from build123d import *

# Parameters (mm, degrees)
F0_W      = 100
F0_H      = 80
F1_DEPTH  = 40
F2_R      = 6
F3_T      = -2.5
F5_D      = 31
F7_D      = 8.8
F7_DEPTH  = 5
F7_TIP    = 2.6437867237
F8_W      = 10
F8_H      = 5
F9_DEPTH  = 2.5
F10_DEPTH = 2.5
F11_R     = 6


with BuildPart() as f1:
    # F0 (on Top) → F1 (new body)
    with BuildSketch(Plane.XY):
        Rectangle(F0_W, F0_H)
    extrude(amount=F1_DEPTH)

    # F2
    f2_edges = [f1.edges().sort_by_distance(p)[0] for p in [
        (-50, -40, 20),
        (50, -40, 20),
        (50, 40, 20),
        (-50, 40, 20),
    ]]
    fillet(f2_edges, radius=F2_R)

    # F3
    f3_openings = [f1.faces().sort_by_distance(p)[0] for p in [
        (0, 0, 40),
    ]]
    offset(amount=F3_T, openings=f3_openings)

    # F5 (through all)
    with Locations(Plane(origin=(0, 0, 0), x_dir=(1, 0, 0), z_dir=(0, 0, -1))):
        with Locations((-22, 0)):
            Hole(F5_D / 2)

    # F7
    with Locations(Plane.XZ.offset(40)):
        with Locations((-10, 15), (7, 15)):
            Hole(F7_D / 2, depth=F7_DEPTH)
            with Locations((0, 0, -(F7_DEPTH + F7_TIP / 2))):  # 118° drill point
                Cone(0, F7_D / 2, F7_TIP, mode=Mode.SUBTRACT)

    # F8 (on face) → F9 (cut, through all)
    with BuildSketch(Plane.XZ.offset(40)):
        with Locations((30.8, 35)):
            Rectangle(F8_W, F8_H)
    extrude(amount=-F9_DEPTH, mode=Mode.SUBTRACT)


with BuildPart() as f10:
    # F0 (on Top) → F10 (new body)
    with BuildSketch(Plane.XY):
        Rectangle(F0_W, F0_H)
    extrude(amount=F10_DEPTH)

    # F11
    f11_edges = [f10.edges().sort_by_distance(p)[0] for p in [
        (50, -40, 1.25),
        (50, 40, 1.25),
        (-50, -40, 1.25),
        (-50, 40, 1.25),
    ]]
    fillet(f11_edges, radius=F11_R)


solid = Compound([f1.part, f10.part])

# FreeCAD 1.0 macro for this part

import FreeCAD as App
import Part
import Sketcher

V = App.Vector


def edges_at(feature, points):
    """Names of the edges that pass closest to the given points."""
    edges = feature.Shape.Edges
    near = lambda p: min(range(len(edges)), key=lambda i: edges[i].distToShape(Part.Vertex(*p))[0])
    return sorted({f"Edge{near(p) + 1}" for p in points})


def faces_at(feature, points):
    """Names of the faces that lie closest to the given points."""
    faces = feature.Shape.Faces
    near = lambda p: min(range(len(faces)), key=lambda i: faces[i].distToShape(Part.Vertex(*p))[0])
    return sorted({f"Face{near(p) + 1}" for p in points})


def add_polygon(sketch, points):
    """Adds a closed chain of lines whose ends are joined by coincident constraints."""
    first, n = sketch.GeometryCount, len(points)
    for a, b in zip(points, points[1:] + points[:1]):
        sketch.addGeometry(Part.LineSegment(App.Vector(*a, 0), App.Vector(*b, 0)), False)
    for i in range(n):
        sketch.addConstraint(Sketcher.Constraint("Coincident", first + i, 2, first + (i + 1) % n, 1))

doc = App.newDocument("Part")
body = doc.addObject("PartDesign::Body", "Body")

sketch1 = doc.addObject("Sketcher::SketchObject", "Sketch")
body.addObject(sketch1)
sketch1.AttachmentSupport = (doc.XY_Plane, [""])
sketch1.MapMode = "FlatFace"
add_polygon(sketch1, [(-50, 40), (-50, -40), (50, -40), (50, 40)])
sketch1.addConstraint(Sketcher.Constraint("Vertical", 0))
sketch1.addConstraint(Sketcher.Constraint("Horizontal", 1))
sketch1.addConstraint(Sketcher.Constraint("Vertical", 2))
sketch1.addConstraint(Sketcher.Constraint("Horizontal", 3))
sketch1.addConstraint(Sketcher.Constraint("Symmetric", 0, 2, 2, 2, -1, 1))
sketch1.addConstraint(Sketcher.Constraint("DistanceX", 1, 1, 1, 2, 100.0))
sketch1.addConstraint(Sketcher.Constraint("DistanceY", 0, 2, 0, 1, 80.0))
pad1 = doc.addObject("PartDesign::Pad", "Pad")
body.addObject(pad1)
pad1.Profile = sketch1
pad1.Length = 40
doc.recompute()

fillet = doc.addObject("PartDesign::Fillet", "Fillet")
body.addObject(fillet)
fillet.Base = (pad1, edges_at(pad1, [
    (-50, -40, 20),
    (50, -40, 20),
    (50, 40, 20),
    (-50, 40, 20),
]))
fillet.Radius = 6
doc.recompute()

thickness = doc.addObject("PartDesign::Thickness", "Thickness")
body.addObject(thickness)
thickness.Base = (fillet, faces_at(fillet, [(0, 0, 40)]))
thickness.Value = 2.5
thickness.Reversed = True
thickness.Join = "Arc"

sketch2 = doc.addObject("Sketcher::SketchObject", "Sketch001")
body.addObject(sketch2)
sketch2.AttachmentSupport = (doc.XY_Plane, [""])
sketch2.MapMode = "FlatFace"
sketch2.addGeometry(Part.Circle(V(-22, 0, 0), V(0, 0, 1), 16), False)
sketch2.addConstraint(Sketcher.Constraint("PointOnObject", 0, 3, -1))
sketch2.addConstraint(Sketcher.Constraint("Diameter", 0, 31.0))
sketch2.addConstraint(Sketcher.Constraint("DistanceX", 0, 3, -1, 1, 22.0))
doc.recompute()
hole = doc.addObject("PartDesign::Hole", "Hole")
body.addObject(hole)
hole.Profile = sketch2
hole.ThreadType = "None"
hole.Diameter = 31
hole.DepthType = "ThroughAll"
hole.Reversed = True

sketch3 = doc.addObject("Sketcher::SketchObject", "Sketch002")
body.addObject(sketch3)
sketch3.AttachmentSupport = (doc.XZ_Plane, [""])
sketch3.MapMode = "FlatFace"
sketch3.AttachmentOffset = App.Placement(V(0, 0, 40), App.Rotation())
sketch3.addGeometry(Part.Circle(V(-10, 15, 0), V(0, 0, 1), 4.4), False)
sketch3.addGeometry(Part.Circle(V(7, 15, 0), V(0, 0, 1), 4.4), False)
sketch3.addConstraint(Sketcher.Constraint("Equal", 0, 1))
sketch3.addConstraint(Sketcher.Constraint("Horizontal", 0, 3, 1, 3))
sketch3.addConstraint(Sketcher.Constraint("Diameter", 0, 8.8))
sketch3.addConstraint(Sketcher.Constraint("DistanceX", 0, 3, -1, 1, 10.0))
sketch3.addConstraint(Sketcher.Constraint("DistanceY", -1, 1, 0, 3, 15.0))
sketch3.addConstraint(Sketcher.Constraint("DistanceX", -1, 1, 1, 3, 7.0))
doc.recompute()
hole2 = doc.addObject("PartDesign::Hole", "Hole001")
body.addObject(hole2)
hole2.Profile = sketch3
hole2.ThreadType = "None"
hole2.Diameter = 8.8
hole2.DepthType = "Dimension"
hole2.Depth = 5
hole2.DrillPoint = "Angled"
hole2.DrillPointAngle = 118

sketch4 = doc.addObject("Sketcher::SketchObject", "Sketch003")
body.addObject(sketch4)
sketch4.AttachmentSupport = (doc.XZ_Plane, [""])
sketch4.MapMode = "FlatFace"
sketch4.AttachmentOffset = App.Placement(V(0, 0, 40), App.Rotation())
add_polygon(sketch4, [(26, 38), (26, 32), (36, 32), (36, 38)])
sketch4.addConstraint(Sketcher.Constraint("Vertical", 0))
sketch4.addConstraint(Sketcher.Constraint("Horizontal", 1))
sketch4.addConstraint(Sketcher.Constraint("Vertical", 2))
sketch4.addConstraint(Sketcher.Constraint("Horizontal", 3))
sketch4.addConstraint(Sketcher.Constraint("DistanceX", 1, 1, 1, 2, 10.0))
sketch4.addConstraint(Sketcher.Constraint("DistanceY", 0, 2, 0, 1, 5.0))
sketch4.addConstraint(Sketcher.Constraint("DistanceX", -1, 1, 0, 2, 25.8))
sketch4.addConstraint(Sketcher.Constraint("DistanceY", -1, 1, 0, 2, 32.5))
pocket1 = doc.addObject("PartDesign::Pocket", "Pocket")
body.addObject(pocket1)
pocket1.Profile = sketch4
pocket1.Length = 2.5
body2 = doc.addObject("PartDesign::Body", "Body001")

sketch5 = doc.addObject("Sketcher::SketchObject", "Sketch004")
body2.addObject(sketch5)
sketch5.AttachmentSupport = (doc.getObject("XY_Plane001"), [""])
sketch5.MapMode = "FlatFace"
add_polygon(sketch5, [(-50, 40), (-50, -40), (50, -40), (50, 40)])
sketch5.addConstraint(Sketcher.Constraint("Vertical", 0))
sketch5.addConstraint(Sketcher.Constraint("Horizontal", 1))
sketch5.addConstraint(Sketcher.Constraint("Vertical", 2))
sketch5.addConstraint(Sketcher.Constraint("Horizontal", 3))
sketch5.addConstraint(Sketcher.Constraint("Symmetric", 0, 2, 2, 2, -1, 1))
sketch5.addConstraint(Sketcher.Constraint("DistanceX", 1, 1, 1, 2, 100.0))
sketch5.addConstraint(Sketcher.Constraint("DistanceY", 0, 2, 0, 1, 80.0))
pad2 = doc.addObject("PartDesign::Pad", "Pad001")
body2.addObject(pad2)
pad2.Profile = sketch5
pad2.Length = 2.5
doc.recompute()

fillet2 = doc.addObject("PartDesign::Fillet", "Fillet001")
body2.addObject(fillet2)
fillet2.Base = (pad2, edges_at(pad2, [
    (50, -40, 1.25),
    (50, 40, 1.25),
    (-50, -40, 1.25),
    (-50, 40, 1.25),
]))
fillet2.Radius = 6

doc.recompute()
